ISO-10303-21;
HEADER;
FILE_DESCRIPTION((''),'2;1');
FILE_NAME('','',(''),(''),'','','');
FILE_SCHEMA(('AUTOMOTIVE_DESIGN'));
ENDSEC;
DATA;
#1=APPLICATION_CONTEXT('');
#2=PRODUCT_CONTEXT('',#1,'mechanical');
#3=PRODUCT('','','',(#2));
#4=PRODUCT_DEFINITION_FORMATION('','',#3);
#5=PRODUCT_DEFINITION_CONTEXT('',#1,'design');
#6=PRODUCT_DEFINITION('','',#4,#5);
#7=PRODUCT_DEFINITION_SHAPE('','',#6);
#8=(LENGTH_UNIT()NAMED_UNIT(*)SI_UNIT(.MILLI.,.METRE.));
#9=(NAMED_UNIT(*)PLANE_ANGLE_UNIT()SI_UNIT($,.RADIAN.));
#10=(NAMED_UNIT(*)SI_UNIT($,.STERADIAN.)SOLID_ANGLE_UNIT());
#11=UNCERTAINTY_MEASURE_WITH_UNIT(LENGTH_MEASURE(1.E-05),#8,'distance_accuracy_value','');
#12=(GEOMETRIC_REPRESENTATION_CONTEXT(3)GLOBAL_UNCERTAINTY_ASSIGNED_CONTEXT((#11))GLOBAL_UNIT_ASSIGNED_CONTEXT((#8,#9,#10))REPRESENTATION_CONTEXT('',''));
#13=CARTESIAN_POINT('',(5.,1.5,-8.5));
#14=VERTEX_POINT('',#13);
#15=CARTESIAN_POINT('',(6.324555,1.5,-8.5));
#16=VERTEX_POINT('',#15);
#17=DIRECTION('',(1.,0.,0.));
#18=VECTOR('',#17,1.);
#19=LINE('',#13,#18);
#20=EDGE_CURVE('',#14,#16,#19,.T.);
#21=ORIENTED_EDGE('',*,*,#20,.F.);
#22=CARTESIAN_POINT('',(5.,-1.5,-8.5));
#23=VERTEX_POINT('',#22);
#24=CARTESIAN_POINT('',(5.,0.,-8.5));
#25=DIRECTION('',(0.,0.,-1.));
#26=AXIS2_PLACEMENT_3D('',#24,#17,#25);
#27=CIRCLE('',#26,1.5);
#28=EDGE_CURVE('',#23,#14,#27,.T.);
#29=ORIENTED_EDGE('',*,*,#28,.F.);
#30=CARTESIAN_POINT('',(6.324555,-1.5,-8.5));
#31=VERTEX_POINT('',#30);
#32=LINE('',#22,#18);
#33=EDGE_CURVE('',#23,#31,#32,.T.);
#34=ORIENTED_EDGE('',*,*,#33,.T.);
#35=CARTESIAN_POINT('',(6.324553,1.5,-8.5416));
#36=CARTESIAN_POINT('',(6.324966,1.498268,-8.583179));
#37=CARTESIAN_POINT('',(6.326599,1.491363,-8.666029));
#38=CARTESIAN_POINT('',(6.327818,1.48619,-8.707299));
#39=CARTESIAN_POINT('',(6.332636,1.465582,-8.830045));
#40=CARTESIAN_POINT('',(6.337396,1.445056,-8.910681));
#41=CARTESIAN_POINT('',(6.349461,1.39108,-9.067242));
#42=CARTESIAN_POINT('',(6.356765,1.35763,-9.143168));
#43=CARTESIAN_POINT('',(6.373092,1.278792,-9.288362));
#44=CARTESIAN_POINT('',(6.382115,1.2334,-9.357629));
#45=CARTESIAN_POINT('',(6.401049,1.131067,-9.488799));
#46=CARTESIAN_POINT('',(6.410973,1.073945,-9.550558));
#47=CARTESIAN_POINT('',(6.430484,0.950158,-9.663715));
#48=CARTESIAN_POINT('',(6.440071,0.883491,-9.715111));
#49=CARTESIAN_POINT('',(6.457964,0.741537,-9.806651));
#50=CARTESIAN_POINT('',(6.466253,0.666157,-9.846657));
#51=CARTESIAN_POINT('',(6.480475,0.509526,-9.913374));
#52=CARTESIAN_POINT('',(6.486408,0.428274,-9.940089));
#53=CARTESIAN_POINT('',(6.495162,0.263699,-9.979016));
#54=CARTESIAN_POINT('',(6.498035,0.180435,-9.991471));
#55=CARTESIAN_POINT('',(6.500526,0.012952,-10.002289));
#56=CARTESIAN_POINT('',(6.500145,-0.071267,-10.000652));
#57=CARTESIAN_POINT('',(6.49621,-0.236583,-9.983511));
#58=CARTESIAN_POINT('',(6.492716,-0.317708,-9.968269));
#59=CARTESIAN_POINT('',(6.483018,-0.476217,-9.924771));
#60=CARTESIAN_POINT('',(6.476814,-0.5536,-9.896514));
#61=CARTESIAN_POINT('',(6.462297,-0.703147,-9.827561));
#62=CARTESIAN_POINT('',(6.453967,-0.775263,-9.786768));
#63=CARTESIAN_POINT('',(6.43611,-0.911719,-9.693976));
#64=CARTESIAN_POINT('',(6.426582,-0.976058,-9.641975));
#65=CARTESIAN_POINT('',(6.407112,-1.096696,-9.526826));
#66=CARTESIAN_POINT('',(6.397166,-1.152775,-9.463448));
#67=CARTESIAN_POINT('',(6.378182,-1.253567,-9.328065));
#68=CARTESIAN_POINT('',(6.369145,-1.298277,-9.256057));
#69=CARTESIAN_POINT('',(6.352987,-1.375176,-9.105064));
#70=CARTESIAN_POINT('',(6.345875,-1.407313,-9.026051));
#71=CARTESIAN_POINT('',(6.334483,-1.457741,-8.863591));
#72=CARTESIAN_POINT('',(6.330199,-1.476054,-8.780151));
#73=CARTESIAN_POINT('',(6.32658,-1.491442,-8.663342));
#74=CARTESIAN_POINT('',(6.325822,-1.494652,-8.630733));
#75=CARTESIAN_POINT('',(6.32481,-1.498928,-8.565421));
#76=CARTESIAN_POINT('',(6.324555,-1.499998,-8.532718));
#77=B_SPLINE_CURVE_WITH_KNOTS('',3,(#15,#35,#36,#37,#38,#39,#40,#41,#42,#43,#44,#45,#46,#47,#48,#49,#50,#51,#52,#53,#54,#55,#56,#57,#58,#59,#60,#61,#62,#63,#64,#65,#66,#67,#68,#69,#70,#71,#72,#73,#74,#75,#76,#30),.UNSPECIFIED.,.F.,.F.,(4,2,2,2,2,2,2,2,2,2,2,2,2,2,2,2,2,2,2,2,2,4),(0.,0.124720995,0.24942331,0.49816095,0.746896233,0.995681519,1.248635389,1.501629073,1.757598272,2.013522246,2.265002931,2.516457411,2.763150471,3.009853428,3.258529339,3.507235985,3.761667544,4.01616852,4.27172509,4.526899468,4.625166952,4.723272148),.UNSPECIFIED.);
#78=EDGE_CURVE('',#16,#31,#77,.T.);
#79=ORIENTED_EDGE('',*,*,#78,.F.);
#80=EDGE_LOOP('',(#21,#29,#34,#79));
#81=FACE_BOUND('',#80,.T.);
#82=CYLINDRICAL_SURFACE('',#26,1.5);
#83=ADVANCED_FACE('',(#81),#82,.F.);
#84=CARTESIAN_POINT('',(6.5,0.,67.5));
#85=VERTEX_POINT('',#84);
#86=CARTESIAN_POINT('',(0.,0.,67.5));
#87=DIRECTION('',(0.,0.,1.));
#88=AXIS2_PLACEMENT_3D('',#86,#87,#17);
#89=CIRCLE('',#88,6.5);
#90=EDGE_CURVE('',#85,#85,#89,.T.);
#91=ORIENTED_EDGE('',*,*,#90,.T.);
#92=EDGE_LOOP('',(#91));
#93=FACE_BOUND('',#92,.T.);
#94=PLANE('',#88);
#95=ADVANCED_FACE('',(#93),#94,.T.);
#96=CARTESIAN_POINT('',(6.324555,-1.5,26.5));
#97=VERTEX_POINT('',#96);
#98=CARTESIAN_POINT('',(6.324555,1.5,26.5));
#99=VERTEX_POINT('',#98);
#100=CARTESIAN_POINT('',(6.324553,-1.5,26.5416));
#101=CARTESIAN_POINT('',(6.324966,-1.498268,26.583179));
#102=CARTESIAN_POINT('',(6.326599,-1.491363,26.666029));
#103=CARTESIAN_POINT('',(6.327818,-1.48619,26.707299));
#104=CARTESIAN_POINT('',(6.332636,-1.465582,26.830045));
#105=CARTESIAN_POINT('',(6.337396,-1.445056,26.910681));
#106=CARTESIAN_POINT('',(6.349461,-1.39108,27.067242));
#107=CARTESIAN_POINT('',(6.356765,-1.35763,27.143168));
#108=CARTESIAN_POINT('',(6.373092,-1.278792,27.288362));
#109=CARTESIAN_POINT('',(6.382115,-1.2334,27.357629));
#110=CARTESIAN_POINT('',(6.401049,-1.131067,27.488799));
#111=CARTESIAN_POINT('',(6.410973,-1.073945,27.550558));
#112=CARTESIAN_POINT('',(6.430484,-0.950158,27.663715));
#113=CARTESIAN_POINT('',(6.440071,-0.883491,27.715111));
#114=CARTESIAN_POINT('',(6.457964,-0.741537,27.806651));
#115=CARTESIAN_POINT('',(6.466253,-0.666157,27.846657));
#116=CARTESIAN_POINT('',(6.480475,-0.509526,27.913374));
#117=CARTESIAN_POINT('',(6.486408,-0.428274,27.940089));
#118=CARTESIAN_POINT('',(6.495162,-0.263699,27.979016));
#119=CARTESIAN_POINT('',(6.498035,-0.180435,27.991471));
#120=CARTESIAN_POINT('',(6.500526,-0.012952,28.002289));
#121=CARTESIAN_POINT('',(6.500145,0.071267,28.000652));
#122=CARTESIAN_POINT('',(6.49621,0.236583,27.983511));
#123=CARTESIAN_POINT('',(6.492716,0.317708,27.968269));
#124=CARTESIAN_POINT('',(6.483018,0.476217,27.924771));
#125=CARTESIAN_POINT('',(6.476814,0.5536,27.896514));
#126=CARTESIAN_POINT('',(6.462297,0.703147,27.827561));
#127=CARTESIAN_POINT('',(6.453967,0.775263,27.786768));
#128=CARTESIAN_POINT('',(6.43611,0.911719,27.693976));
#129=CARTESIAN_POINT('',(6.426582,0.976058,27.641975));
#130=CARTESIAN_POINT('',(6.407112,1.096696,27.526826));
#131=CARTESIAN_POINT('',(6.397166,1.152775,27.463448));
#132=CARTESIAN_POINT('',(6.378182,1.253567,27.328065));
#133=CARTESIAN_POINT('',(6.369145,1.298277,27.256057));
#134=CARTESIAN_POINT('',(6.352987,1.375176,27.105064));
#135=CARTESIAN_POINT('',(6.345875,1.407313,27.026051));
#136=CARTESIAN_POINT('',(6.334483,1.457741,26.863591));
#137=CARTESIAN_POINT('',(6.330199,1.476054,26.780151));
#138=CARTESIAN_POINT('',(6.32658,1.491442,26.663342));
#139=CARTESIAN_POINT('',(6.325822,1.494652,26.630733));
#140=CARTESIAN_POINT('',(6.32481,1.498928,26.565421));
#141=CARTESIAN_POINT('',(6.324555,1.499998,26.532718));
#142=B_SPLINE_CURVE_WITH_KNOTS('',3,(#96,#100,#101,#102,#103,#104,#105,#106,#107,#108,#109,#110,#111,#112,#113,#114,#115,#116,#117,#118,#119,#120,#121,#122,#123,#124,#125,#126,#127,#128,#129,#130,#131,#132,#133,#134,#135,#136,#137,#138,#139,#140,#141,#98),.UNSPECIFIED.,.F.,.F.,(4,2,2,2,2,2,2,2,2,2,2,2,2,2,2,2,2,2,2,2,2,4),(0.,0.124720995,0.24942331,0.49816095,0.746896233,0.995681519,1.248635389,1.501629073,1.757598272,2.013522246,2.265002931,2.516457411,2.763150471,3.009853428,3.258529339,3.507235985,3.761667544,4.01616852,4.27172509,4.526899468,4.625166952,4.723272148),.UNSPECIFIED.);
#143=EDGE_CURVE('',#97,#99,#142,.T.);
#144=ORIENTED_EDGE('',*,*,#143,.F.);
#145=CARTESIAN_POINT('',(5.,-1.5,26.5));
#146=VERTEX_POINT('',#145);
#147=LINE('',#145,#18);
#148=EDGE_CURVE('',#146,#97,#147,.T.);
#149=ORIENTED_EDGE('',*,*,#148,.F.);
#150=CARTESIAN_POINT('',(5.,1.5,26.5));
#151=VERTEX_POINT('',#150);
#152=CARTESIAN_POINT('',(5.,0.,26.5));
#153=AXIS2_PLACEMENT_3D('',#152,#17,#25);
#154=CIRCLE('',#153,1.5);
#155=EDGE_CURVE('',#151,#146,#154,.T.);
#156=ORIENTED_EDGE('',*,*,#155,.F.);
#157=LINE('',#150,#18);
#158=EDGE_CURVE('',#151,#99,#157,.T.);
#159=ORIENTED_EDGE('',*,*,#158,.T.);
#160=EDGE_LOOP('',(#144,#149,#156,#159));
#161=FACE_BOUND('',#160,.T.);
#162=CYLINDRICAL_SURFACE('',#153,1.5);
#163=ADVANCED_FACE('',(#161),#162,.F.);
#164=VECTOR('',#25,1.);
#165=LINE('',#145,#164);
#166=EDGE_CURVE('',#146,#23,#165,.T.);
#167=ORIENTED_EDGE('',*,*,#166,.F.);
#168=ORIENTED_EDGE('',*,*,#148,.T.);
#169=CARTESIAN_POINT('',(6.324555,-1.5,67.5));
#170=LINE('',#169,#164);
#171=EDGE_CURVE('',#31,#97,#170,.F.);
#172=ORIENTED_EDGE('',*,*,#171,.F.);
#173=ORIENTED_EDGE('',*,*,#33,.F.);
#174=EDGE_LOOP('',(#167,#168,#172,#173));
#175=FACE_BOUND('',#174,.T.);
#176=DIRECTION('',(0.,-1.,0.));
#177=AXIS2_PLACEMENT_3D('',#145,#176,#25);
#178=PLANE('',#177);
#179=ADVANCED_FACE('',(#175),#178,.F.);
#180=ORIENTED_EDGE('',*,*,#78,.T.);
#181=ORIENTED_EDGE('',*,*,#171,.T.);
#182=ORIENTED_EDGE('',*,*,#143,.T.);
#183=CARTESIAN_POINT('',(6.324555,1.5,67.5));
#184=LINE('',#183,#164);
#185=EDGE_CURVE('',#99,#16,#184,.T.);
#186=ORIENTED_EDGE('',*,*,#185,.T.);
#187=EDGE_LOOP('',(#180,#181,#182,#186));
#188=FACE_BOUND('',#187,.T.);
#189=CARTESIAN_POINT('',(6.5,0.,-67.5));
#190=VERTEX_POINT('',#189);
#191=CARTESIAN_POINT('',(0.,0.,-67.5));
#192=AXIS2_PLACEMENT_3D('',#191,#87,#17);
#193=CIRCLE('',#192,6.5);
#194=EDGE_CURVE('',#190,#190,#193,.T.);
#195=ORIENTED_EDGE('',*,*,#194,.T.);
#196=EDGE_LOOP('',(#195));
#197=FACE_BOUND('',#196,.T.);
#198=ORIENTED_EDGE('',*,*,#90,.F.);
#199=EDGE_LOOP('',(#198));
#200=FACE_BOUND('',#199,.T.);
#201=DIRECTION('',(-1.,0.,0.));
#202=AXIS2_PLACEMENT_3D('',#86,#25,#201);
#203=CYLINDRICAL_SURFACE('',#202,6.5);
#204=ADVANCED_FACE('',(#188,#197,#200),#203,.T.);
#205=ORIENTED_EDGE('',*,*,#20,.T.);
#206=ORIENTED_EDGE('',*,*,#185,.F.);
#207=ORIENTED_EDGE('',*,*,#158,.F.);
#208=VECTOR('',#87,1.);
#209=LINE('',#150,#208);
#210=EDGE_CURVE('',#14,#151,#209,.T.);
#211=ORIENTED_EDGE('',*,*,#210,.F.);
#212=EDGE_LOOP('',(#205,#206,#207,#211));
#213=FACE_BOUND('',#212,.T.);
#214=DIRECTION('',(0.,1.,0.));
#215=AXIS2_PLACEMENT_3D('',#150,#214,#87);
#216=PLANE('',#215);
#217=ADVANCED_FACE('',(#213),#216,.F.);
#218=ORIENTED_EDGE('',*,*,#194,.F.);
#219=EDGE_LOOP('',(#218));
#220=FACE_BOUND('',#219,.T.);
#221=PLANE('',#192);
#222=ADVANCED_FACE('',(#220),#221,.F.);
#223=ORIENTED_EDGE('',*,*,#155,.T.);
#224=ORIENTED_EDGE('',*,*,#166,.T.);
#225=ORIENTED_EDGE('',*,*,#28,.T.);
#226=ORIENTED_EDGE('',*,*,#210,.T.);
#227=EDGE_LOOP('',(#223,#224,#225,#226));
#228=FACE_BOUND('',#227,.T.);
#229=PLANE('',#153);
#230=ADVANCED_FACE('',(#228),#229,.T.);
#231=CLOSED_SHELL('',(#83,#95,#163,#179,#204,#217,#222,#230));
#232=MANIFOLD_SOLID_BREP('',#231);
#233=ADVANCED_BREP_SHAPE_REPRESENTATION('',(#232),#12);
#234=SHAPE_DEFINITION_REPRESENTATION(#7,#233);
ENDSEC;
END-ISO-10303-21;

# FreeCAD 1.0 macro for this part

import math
import FreeCAD as App
import Part
import Sketcher
from FreeCAD import Vector

doc = App.newDocument("Part")
body = doc.addObject("PartDesign::Body", "Body")

# Sketch on XY plane
sketch1 = doc.addObject("Sketcher::SketchObject", "Sketch")
body.addObject(sketch1)
sketch1.AttachmentSupport = (doc.XY_Plane, [""])
sketch1.MapMode = "FlatFace"
sketch1.addGeometry(Part.Circle(Vector(0, 0, 0), Vector(0, 0, 1), 6), False)
sketch1.addConstraint(Sketcher.Constraint("Coincident", 0, 3, -1, 1))
sketch1.addConstraint(Sketcher.Constraint("Diameter", 0, 13.0))
pad1 = doc.addObject("PartDesign::Pad", "Pad")
body.addObject(pad1)
pad1.Profile = sketch1
pad1.Length = 135
pad1.Midplane = True

# Sketch on YZ plane
sketch2 = doc.addObject("Sketcher::SketchObject", "Sketch001")
body.addObject(sketch2)
sketch2.AttachmentSupport = (doc.YZ_Plane, [""])
sketch2.MapMode = "FlatFace"
sketch2.AttachmentOffset = App.Placement(Vector(0, 0, 6.5), App.Rotation())
sketch2.addGeometry(Part.LineSegment(Vector(1.5, -8.5, 0), Vector(1.5, 26.5, 0)), False)
sketch2.addGeometry(Part.ArcOfCircle(Part.Circle(Vector(0, 26.5, 0), Vector(0, 0, 1), 1.5), math.radians(0), math.radians(180)), False)
sketch2.addGeometry(Part.LineSegment(Vector(-1.5, 26.5, 0), Vector(-1.5, -8.5, 0)), False)
sketch2.addGeometry(Part.ArcOfCircle(Part.Circle(Vector(0, -8.5, 0), Vector(0, 0, 1), 1.5), math.radians(180), math.radians(360)), False)
sketch2.addConstraint(Sketcher.Constraint("Tangent", 0, 2, 1, 1))
sketch2.addConstraint(Sketcher.Constraint("Tangent", 1, 2, 2, 1))
sketch2.addConstraint(Sketcher.Constraint("Tangent", 2, 2, 3, 1))
sketch2.addConstraint(Sketcher.Constraint("Tangent", 3, 2, 0, 1))
sketch2.addConstraint(Sketcher.Constraint("Vertical", 0))
sketch2.addConstraint(Sketcher.Constraint("Vertical", 2))
sketch2.addConstraint(Sketcher.Constraint("PointOnObject", 1, 3, -2))
sketch2.addConstraint(Sketcher.Constraint("Radius", 1, 1.5))
sketch2.addConstraint(Sketcher.Constraint("DistanceY", 0, 1, 0, 2, 35.0))
sketch2.addConstraint(Sketcher.Constraint("DistanceY", -1, 1, 1, 3, 26.5))
pocket1 = doc.addObject("PartDesign::Pocket", "Pocket")
body.addObject(pocket1)
pocket1.Profile = sketch2
pocket1.Length = 1.5

doc.recompute()
